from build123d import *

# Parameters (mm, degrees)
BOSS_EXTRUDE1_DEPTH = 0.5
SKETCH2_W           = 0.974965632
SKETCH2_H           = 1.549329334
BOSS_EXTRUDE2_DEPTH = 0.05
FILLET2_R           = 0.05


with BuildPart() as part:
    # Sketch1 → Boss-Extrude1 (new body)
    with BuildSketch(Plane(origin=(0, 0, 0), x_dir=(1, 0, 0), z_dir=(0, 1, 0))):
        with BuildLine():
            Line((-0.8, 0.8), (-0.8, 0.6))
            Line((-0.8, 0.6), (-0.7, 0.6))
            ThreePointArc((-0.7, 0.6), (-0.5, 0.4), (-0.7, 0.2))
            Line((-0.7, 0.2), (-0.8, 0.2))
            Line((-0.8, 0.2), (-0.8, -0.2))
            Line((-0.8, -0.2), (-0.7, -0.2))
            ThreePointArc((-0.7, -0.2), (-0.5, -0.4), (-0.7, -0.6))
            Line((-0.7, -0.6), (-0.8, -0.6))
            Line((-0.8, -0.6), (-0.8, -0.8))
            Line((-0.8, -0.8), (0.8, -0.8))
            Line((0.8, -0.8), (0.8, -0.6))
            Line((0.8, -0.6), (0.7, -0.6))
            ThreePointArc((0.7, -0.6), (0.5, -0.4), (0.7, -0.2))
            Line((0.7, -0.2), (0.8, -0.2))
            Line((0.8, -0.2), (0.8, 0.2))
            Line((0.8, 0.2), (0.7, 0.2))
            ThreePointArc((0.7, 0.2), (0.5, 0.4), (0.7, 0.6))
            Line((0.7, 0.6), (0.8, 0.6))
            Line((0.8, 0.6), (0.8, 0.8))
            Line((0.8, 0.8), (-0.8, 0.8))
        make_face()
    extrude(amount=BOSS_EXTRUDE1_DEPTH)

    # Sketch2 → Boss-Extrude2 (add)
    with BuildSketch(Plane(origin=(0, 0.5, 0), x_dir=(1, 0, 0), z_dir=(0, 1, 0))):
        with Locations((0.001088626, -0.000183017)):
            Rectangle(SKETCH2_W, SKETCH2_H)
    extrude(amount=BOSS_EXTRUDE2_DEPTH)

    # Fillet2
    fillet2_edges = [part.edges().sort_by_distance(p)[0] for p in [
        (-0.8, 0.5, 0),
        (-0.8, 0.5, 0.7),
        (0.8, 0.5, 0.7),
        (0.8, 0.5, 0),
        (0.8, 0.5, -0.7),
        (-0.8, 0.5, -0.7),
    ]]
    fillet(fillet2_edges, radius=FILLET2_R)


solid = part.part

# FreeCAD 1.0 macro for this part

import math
import FreeCAD as App
import Part
import Sketcher
Q = App.Units.Quantity


def edges_at(feature, points):
    """Names of the edges that pass closest to the given points."""
    edges = feature.Shape.Edges
    near = lambda p: min(range(len(edges)), key=lambda i: edges[i].distToShape(Part.Vertex(*p))[0])
    return sorted({f"Edge{near(p) + 1}" for p in points})

doc = App.newDocument("Part")
body = doc.addObject("PartDesign::Body", "Body")

# Sketch on XZ plane
sketch1 = body.newObject("Sketcher::SketchObject", "Sketch")
sketch1.AttachmentSupport = (doc.getObject("XZ_Plane"), [""])
sketch1.MapMode = "FlatFace"
sketch1.addGeometry(Part.LineSegment(App.Vector(-0.8, -0.8, 0), App.Vector(-0.8, -0.6, 0)), False)
sketch1.addGeometry(Part.LineSegment(App.Vector(-0.8, -0.6, 0), App.Vector(-0.7, -0.6, 0)), False)
sketch1.addGeometry(Part.ArcOfCircle(Part.Circle(App.Vector(-0.7, -0.4, 0), App.Vector(0, 0, 1), 0.2), math.radians(-90), math.radians(90)), False)
sketch1.addGeometry(Part.LineSegment(App.Vector(-0.7, -0.2, 0), App.Vector(-0.8, -0.2, 0)), False)
sketch1.addGeometry(Part.LineSegment(App.Vector(-0.8, -0.2, 0), App.Vector(-0.8, 0.2, 0)), False)
sketch1.addGeometry(Part.LineSegment(App.Vector(-0.8, 0.2, 0), App.Vector(-0.7, 0.2, 0)), False)
sketch1.addGeometry(Part.ArcOfCircle(Part.Circle(App.Vector(-0.7, 0.4, 0), App.Vector(0, 0, 1), 0.2), math.radians(-90), math.radians(90)), False)
sketch1.addGeometry(Part.LineSegment(App.Vector(-0.7, 0.6, 0), App.Vector(-0.8, 0.6, 0)), False)
sketch1.addGeometry(Part.LineSegment(App.Vector(-0.8, 0.6, 0), App.Vector(-0.8, 0.8, 0)), False)
sketch1.addGeometry(Part.LineSegment(App.Vector(-0.8, 0.8, 0), App.Vector(0.8, 0.8, 0)), False)
sketch1.addGeometry(Part.LineSegment(App.Vector(0.8, 0.8, 0), App.Vector(0.8, 0.6, 0)), False)
sketch1.addGeometry(Part.LineSegment(App.Vector(0.8, 0.6, 0), App.Vector(0.7, 0.6, 0)), False)
sketch1.addGeometry(Part.ArcOfCircle(Part.Circle(App.Vector(0.7, 0.4, 0), App.Vector(0, 0, 1), 0.2), math.radians(90), math.radians(270)), False)
sketch1.addGeometry(Part.LineSegment(App.Vector(0.7, 0.2, 0), App.Vector(0.8, 0.2, 0)), False)
sketch1.addGeometry(Part.LineSegment(App.Vector(0.8, 0.2, 0), App.Vector(0.8, -0.2, 0)), False)
sketch1.addGeometry(Part.LineSegment(App.Vector(0.8, -0.2, 0), App.Vector(0.7, -0.2, 0)), False)
sketch1.addGeometry(Part.ArcOfCircle(Part.Circle(App.Vector(0.7, -0.4, 0), App.Vector(0, 0, 1), 0.2), math.radians(90), math.radians(270)), False)
sketch1.addGeometry(Part.LineSegment(App.Vector(0.7, -0.6, 0), App.Vector(0.8, -0.6, 0)), False)
sketch1.addGeometry(Part.LineSegment(App.Vector(0.8, -0.6, 0), App.Vector(0.8, -0.8, 0)), False)
sketch1.addGeometry(Part.LineSegment(App.Vector(0.8, -0.8, 0), App.Vector(-0.8, -0.8, 0)), False)
sketch1.addConstraint(Sketcher.Constraint("Coincident", 0, 2, 1, 1))
sketch1.addConstraint(Sketcher.Constraint("Tangent", 1, 2, 2, 1))
sketch1.addConstraint(Sketcher.Constraint("Tangent", 2, 2, 3, 1))
sketch1.addConstraint(Sketcher.Constraint("Coincident", 3, 2, 4, 1))
sketch1.addConstraint(Sketcher.Constraint("Coincident", 4, 2, 5, 1))
sketch1.addConstraint(Sketcher.Constraint("Tangent", 5, 2, 6, 1))
sketch1.addConstraint(Sketcher.Constraint("Tangent", 6, 2, 7, 1))
sketch1.addConstraint(Sketcher.Constraint("Coincident", 7, 2, 8, 1))
sketch1.addConstraint(Sketcher.Constraint("Coincident", 8, 2, 9, 1))
sketch1.addConstraint(Sketcher.Constraint("Coincident", 9, 2, 10, 1))
sketch1.addConstraint(Sketcher.Constraint("Coincident", 10, 2, 11, 1))
sketch1.addConstraint(Sketcher.Constraint("Tangent", 11, 2, 12, 1))
sketch1.addConstraint(Sketcher.Constraint("Tangent", 12, 2, 13, 1))
sketch1.addConstraint(Sketcher.Constraint("Coincident", 13, 2, 14, 1))
sketch1.addConstraint(Sketcher.Constraint("Coincident", 14, 2, 15, 1))
sketch1.addConstraint(Sketcher.Constraint("Tangent", 15, 2, 16, 1))
sketch1.addConstraint(Sketcher.Constraint("Tangent", 16, 2, 17, 1))
sketch1.addConstraint(Sketcher.Constraint("Coincident", 17, 2, 18, 1))
sketch1.addConstraint(Sketcher.Constraint("Coincident", 18, 2, 19, 1))
sketch1.addConstraint(Sketcher.Constraint("Coincident", 19, 2, 0, 1))
sketch1.addConstraint(Sketcher.Constraint("Vertical", 0))
sketch1.addConstraint(Sketcher.Constraint("Horizontal", 1))
sketch1.addConstraint(Sketcher.Constraint("Horizontal", 3))
sketch1.addConstraint(Sketcher.Constraint("Vertical", 4))
sketch1.addConstraint(Sketcher.Constraint("Horizontal", 5))
sketch1.addConstraint(Sketcher.Constraint("Horizontal", 7))
sketch1.addConstraint(Sketcher.Constraint("Vertical", 8))
sketch1.addConstraint(Sketcher.Constraint("Horizontal", 9))
sketch1.addConstraint(Sketcher.Constraint("Vertical", 10))
sketch1.addConstraint(Sketcher.Constraint("Horizontal", 11))
sketch1.addConstraint(Sketcher.Constraint("Horizontal", 13))
sketch1.addConstraint(Sketcher.Constraint("Vertical", 14))
sketch1.addConstraint(Sketcher.Constraint("Horizontal", 15))
sketch1.addConstraint(Sketcher.Constraint("Horizontal", 17))
sketch1.addConstraint(Sketcher.Constraint("Vertical", 18))
sketch1.addConstraint(Sketcher.Constraint("Horizontal", 19))
sketch1.addConstraint(Sketcher.Constraint("Equal", 2, 6))
sketch1.addConstraint(Sketcher.Constraint("Equal", 6, 12))
sketch1.addConstraint(Sketcher.Constraint("Equal", 12, 16))
sketch1.addConstraint(Sketcher.Constraint("Symmetric", 2, 3, 12, 3, -1, 1))
sketch1.addConstraint(Sketcher.Constraint("Symmetric", 6, 3, 16, 3, -1, 1))
sketch1.addConstraint(Sketcher.Constraint("Symmetric", 8, 2, 18, 2, -1, 1))
sketch1.addConstraint(Sketcher.Constraint("Symmetric", 6, 3, 12, 3, -2))
sketch1.addConstraint(Sketcher.Constraint("Vertical", 0, 2, 3, 2))
sketch1.addConstraint(Sketcher.Constraint("Vertical", 4, 2, 7, 2))
sketch1.addConstraint(Sketcher.Constraint("Vertical", 10, 2, 13, 2))
sketch1.addConstraint(Sketcher.Constraint("Vertical", 14, 2, 17, 2))
sketch1.addConstraint(Sketcher.Constraint("Radius", 2, Q("0.2 mm")))
sketch1.addConstraint(Sketcher.Constraint("DistanceX", 1, 1, 1, 2, Q("0.1 mm")))
sketch1.addConstraint(Sketcher.Constraint("DistanceX", 9, 1, 9, 2, Q("1.6 mm")))
sketch1.addConstraint(Sketcher.Constraint("DistanceY", 0, 1, 0, 2, Q("0.2 mm")))
sketch1.addConstraint(Sketcher.Constraint("DistanceY", 4, 1, 4, 2, Q("0.4 mm")))
pad1 = body.newObject("PartDesign::Pad", "Pad")
pad1.Profile = sketch1
pad1.Length = 0.5
pad1.Reversed = True

# Sketch on XZ plane
sketch2 = body.newObject("Sketcher::SketchObject", "Sketch001")
sketch2.AttachmentSupport = (doc.getObject("XZ_Plane"), [""])
sketch2.MapMode = "FlatFace"
sketch2.AttachmentOffset = App.Placement(App.Vector(0, 0, -0.5), App.Rotation())
sketch2.addGeometry(Part.LineSegment(App.Vector(-0.5, -0.8, 0), App.Vector(-0.5, 0.8, 0)), False)
sketch2.addGeometry(Part.LineSegment(App.Vector(-0.5, 0.8, 0), App.Vector(0.5, 0.8, 0)), False)
sketch2.addGeometry(Part.LineSegment(App.Vector(0.5, 0.8, 0), App.Vector(0.5, -0.8, 0)), False)
sketch2.addGeometry(Part.LineSegment(App.Vector(0.5, -0.8, 0), App.Vector(-0.5, -0.8, 0)), False)
sketch2.addConstraint(Sketcher.Constraint("Coincident", 0, 2, 1, 1))
sketch2.addConstraint(Sketcher.Constraint("Coincident", 1, 2, 2, 1))
sketch2.addConstraint(Sketcher.Constraint("Coincident", 2, 2, 3, 1))
sketch2.addConstraint(Sketcher.Constraint("Coincident", 3, 2, 0, 1))
sketch2.addConstraint(Sketcher.Constraint("Vertical", 0))
sketch2.addConstraint(Sketcher.Constraint("Horizontal", 1))
sketch2.addConstraint(Sketcher.Constraint("Vertical", 2))
sketch2.addConstraint(Sketcher.Constraint("Horizontal", 3))
sketch2.addConstraint(Sketcher.Constraint("DistanceY", 0, 1, 0, 2, Q("1.549329 mm")))
sketch2.addConstraint(Sketcher.Constraint("DistanceX", 1, 1, 1, 2, Q("0.974966 mm")))
sketch2.addConstraint(Sketcher.Constraint("DistanceX", -1, 1, 1, 2, Q("0.488571 mm")))
sketch2.addConstraint(Sketcher.Constraint("DistanceY", 2, 2, -1, 1, Q("0.774482 mm")))
pad2 = body.newObject("PartDesign::Pad", "Pad001")
pad2.Profile = sketch2
pad2.Length = 0.05
pad2.Reversed = True
doc.recompute()

fillet = body.newObject("PartDesign::Fillet", "Fillet")
fillet.Base = (pad2, edges_at(pad2, [
    (-0.8, 0.5, 0),
    (-0.8, 0.5, 0.7),
    (0.8, 0.5, 0.7),
    (0.8, 0.5, 0),
    (0.8, 0.5, -0.7),
    (-0.8, 0.5, -0.7),
]))
fillet.Radius = 0.05

doc.recompute()
